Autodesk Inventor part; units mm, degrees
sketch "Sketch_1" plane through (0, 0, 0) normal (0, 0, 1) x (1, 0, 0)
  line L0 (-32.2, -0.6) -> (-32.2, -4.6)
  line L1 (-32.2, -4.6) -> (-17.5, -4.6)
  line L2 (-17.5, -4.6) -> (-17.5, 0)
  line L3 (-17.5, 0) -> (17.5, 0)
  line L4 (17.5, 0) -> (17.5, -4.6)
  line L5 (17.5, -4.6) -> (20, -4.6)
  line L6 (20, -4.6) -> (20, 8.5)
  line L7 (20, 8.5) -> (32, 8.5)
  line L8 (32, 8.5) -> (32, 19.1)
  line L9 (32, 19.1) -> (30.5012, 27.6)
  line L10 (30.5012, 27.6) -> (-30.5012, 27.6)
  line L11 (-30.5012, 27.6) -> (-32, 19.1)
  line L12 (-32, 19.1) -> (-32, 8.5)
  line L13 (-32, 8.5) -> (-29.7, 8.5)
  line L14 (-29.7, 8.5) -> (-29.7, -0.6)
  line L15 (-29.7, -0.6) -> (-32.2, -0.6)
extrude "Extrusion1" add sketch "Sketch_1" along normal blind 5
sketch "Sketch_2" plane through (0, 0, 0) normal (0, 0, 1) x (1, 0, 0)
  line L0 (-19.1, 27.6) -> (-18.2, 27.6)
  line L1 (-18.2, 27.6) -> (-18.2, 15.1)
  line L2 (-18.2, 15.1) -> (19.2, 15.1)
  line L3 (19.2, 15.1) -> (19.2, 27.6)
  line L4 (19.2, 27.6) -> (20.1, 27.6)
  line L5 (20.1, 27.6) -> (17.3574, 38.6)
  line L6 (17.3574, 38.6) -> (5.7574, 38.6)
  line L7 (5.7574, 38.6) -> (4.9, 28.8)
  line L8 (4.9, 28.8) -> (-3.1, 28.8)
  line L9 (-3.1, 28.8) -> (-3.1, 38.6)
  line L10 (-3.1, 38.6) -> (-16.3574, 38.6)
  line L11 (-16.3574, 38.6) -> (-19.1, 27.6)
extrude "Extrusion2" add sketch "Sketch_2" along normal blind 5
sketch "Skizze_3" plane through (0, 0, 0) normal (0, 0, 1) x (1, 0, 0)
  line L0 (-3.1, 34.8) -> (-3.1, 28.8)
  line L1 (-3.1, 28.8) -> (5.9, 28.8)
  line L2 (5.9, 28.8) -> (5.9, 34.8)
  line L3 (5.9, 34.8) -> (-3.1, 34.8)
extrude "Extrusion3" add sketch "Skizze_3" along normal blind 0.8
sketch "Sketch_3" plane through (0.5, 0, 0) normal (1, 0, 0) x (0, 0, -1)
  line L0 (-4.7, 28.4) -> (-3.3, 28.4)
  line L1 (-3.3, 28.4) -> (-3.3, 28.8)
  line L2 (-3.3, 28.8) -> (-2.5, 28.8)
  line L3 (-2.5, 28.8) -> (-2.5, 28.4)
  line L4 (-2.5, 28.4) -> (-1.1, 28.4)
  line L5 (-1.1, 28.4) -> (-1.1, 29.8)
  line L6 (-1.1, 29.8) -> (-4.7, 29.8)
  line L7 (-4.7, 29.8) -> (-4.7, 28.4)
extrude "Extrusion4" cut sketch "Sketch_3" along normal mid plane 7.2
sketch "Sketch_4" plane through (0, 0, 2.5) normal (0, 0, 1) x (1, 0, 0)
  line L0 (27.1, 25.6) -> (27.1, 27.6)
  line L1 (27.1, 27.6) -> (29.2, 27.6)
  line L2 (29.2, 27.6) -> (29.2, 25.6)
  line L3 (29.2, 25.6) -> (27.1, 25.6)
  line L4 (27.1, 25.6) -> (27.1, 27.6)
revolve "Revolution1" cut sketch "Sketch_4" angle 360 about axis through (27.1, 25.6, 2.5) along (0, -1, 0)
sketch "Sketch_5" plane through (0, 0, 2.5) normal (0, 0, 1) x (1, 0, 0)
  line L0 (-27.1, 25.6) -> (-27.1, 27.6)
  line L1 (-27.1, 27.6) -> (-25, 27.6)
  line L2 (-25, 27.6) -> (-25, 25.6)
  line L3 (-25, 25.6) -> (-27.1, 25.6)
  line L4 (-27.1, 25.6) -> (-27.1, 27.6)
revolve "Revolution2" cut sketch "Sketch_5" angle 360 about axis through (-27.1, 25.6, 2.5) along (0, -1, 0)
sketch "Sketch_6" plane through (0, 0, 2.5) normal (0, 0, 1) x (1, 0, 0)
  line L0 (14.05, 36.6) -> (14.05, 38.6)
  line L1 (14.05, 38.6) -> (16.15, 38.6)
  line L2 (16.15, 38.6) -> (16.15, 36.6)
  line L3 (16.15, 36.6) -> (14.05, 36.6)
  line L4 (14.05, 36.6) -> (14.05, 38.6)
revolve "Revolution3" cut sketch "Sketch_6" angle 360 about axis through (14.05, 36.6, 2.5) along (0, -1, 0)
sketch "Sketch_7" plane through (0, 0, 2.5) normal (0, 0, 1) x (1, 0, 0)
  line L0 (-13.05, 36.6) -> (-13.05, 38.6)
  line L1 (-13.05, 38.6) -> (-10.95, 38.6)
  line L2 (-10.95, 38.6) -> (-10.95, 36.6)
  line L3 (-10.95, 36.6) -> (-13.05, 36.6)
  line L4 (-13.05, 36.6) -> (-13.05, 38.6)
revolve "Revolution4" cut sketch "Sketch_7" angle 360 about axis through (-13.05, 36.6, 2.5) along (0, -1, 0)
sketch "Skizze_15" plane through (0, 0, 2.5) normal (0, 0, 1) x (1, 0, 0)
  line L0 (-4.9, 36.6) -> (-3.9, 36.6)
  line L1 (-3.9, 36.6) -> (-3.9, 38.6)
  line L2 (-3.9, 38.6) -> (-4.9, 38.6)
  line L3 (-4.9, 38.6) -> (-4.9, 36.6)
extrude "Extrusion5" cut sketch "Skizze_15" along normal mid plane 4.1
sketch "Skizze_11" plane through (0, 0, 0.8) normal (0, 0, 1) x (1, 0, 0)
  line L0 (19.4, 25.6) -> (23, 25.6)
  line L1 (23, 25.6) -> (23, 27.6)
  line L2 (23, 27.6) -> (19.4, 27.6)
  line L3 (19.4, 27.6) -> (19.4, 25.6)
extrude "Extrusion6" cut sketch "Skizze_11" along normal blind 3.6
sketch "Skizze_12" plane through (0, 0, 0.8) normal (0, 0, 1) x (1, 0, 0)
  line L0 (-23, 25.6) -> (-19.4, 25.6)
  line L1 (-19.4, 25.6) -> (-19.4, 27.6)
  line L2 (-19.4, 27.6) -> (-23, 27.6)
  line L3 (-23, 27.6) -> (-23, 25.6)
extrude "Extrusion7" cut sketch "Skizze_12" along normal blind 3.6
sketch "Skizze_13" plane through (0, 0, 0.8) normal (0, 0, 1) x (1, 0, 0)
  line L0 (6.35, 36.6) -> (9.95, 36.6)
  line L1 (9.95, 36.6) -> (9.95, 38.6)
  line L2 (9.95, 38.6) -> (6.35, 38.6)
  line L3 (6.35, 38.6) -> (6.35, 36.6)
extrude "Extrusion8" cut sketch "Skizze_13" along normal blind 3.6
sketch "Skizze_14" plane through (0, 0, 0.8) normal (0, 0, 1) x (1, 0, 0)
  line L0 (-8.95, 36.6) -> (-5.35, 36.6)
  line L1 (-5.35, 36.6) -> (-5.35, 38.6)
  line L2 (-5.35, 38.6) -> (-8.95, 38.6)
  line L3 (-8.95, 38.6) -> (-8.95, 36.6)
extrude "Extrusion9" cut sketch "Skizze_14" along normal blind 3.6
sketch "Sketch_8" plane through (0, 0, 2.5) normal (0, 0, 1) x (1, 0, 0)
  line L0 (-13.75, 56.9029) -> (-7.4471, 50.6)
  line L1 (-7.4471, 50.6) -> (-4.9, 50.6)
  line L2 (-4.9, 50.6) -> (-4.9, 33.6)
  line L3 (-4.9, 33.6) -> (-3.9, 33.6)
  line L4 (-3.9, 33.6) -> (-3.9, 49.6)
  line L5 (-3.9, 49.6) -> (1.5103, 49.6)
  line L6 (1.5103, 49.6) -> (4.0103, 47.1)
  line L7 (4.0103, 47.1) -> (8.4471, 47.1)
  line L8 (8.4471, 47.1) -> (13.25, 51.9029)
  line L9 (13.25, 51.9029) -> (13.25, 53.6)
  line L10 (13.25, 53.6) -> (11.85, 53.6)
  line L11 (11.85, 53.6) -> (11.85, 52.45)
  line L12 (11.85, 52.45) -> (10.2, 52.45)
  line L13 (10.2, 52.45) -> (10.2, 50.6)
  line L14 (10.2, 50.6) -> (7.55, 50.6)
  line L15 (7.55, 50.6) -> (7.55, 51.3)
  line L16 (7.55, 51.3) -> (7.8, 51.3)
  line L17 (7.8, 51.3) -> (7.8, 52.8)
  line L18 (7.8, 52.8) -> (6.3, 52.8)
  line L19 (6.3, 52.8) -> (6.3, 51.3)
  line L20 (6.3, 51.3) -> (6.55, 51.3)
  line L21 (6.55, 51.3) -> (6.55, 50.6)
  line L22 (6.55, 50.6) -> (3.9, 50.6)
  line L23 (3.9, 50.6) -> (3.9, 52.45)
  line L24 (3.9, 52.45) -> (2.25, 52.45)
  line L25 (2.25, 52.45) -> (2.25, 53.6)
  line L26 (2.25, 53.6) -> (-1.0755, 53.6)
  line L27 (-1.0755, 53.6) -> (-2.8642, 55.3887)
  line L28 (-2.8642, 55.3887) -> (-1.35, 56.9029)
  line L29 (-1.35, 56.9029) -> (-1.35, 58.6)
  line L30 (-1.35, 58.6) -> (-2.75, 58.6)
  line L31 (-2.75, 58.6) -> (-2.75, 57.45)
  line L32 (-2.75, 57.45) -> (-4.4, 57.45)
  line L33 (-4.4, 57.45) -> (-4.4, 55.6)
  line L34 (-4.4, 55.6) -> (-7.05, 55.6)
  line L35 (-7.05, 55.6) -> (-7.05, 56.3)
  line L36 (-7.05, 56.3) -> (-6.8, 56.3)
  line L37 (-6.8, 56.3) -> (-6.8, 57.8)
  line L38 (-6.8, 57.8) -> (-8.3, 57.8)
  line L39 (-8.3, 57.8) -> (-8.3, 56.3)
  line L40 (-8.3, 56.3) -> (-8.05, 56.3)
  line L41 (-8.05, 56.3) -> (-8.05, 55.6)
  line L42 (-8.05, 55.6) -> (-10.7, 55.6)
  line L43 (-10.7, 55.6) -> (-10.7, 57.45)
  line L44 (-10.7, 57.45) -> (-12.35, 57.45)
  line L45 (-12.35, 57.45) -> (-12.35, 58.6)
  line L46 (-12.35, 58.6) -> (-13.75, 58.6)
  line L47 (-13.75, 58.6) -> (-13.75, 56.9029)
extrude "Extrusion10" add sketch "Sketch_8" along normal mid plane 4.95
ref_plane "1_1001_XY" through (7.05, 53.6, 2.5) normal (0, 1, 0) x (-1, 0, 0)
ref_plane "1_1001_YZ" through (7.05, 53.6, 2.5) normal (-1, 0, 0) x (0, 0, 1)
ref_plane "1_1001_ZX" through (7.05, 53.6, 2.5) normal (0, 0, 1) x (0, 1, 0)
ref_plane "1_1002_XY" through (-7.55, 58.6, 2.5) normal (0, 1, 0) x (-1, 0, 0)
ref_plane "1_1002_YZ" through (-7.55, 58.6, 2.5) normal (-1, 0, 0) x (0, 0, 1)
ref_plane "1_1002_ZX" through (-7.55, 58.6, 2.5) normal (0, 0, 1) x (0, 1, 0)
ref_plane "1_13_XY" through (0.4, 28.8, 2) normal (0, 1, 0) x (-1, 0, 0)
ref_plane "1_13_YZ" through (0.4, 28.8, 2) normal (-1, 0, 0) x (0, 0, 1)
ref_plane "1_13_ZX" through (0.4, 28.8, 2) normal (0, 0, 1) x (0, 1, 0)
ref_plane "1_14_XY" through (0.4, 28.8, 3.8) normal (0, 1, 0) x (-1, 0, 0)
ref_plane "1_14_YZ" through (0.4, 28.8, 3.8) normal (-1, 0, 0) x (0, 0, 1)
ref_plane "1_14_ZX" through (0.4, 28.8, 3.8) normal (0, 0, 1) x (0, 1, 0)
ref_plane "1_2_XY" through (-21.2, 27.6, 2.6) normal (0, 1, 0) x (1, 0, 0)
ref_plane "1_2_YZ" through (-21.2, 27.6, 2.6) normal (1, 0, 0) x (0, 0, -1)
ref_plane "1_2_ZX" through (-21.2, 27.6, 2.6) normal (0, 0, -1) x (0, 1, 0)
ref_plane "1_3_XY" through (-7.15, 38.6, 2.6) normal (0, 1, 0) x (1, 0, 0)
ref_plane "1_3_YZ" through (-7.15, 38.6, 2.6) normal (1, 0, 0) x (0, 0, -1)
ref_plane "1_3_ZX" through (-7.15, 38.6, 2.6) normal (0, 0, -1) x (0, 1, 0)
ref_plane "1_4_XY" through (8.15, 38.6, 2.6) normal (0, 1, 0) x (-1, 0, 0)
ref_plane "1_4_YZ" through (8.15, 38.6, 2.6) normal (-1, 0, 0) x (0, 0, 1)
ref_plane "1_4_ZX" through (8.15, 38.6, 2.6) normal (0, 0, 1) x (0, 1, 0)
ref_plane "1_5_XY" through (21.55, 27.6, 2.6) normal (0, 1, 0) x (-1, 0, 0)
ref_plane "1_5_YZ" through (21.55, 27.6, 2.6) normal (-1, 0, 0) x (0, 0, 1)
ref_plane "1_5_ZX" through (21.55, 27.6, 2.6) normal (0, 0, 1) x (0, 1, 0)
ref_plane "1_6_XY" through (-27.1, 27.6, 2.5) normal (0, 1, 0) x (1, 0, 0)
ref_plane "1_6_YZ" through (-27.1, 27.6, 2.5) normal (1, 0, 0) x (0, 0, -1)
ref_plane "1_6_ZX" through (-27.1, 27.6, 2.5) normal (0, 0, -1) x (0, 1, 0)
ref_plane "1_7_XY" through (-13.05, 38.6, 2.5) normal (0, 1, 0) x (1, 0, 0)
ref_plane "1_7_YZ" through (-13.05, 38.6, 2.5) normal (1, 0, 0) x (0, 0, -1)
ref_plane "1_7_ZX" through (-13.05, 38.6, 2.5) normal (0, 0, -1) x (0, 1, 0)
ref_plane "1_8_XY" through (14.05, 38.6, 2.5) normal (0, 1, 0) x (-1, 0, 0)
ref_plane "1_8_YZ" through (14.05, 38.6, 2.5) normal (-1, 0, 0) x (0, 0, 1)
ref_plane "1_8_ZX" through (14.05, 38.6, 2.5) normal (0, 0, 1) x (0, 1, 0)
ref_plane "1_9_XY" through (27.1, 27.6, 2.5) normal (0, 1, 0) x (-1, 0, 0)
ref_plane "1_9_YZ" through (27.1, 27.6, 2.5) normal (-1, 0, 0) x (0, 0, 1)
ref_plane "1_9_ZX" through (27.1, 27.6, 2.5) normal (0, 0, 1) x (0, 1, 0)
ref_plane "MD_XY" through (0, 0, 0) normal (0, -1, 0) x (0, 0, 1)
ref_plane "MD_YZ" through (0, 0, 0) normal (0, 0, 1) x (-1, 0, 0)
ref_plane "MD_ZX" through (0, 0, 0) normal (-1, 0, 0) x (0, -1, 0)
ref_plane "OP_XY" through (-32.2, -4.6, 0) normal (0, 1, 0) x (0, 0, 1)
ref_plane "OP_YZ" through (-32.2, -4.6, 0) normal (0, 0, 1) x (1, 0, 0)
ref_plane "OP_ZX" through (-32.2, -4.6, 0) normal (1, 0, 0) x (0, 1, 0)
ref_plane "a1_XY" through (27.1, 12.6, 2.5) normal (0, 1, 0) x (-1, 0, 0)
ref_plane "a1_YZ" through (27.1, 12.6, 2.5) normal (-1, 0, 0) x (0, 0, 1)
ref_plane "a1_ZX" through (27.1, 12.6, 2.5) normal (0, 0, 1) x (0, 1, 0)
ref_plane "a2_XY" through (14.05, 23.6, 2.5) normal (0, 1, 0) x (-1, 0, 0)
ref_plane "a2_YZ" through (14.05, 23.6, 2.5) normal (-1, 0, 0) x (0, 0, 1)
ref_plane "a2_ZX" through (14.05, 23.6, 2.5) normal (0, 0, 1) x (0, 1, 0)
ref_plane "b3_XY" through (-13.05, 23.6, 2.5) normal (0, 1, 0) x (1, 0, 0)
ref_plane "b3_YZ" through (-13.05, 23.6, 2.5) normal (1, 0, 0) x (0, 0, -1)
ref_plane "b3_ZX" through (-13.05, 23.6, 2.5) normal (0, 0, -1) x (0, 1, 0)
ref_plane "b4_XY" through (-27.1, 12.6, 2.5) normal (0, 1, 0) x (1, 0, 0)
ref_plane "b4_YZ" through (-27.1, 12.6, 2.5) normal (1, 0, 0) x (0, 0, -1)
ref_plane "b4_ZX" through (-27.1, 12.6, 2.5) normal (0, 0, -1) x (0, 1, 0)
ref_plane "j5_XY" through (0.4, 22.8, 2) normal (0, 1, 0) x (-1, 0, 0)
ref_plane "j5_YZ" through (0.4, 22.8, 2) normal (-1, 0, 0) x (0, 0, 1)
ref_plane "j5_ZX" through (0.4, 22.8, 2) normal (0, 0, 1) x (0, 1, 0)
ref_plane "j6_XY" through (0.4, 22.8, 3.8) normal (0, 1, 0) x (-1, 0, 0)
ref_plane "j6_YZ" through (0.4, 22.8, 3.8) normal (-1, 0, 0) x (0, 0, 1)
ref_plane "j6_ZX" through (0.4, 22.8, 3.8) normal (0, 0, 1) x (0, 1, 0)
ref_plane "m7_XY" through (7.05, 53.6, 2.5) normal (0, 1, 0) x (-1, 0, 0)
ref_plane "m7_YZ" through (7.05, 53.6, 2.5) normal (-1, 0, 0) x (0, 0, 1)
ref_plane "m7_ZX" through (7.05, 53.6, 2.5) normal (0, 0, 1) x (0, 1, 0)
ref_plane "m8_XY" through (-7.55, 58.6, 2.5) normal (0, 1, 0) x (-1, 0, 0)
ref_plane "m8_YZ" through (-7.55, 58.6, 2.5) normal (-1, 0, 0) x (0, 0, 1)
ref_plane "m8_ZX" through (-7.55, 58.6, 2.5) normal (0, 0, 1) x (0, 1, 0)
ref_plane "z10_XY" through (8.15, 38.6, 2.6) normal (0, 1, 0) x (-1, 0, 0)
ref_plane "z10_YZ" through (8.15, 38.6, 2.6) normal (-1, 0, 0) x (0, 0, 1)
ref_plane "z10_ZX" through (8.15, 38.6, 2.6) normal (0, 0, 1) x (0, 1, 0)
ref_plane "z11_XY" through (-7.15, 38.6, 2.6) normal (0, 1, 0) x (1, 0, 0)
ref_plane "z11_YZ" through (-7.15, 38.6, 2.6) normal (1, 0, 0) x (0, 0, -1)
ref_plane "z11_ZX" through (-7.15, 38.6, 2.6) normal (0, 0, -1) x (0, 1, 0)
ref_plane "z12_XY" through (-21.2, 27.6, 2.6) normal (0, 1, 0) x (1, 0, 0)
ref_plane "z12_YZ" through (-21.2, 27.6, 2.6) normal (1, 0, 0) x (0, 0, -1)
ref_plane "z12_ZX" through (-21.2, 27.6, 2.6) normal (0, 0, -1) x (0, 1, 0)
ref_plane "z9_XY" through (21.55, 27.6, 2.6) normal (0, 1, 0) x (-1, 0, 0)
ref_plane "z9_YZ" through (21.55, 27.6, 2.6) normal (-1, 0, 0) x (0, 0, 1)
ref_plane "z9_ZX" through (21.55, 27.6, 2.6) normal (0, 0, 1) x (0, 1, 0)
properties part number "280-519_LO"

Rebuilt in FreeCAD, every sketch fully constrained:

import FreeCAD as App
import Part
import Sketcher
Q = App.Units.Quantity

doc = App.newDocument("Part")
body = doc.addObject("PartDesign::Body", "Body")

sketch1 = doc.addObject("Sketcher::SketchObject", "Sketch")
body.addObject(sketch1)
sketch1.AttachmentSupport = (doc.XY_Plane, [""])
sketch1.MapMode = "FlatFace"
sketch1.addGeometry([
    Part.LineSegment(App.Vector(-29.7, -0.6, 0), App.Vector(-32.2, -0.6, 0)),
    Part.LineSegment(App.Vector(-32.2, -0.6, 0), App.Vector(-32.2, -4.6, 0)),
    Part.LineSegment(App.Vector(-32.2, -4.6, 0), App.Vector(-17.5, -4.6, 0)),
    Part.LineSegment(App.Vector(-17.5, -4.6, 0), App.Vector(-17.5, 0, 0)),
    Part.LineSegment(App.Vector(-17.5, 0, 0), App.Vector(17.5, 0, 0)),
    Part.LineSegment(App.Vector(17.5, 0, 0), App.Vector(17.5, -4.6, 0)),
    Part.LineSegment(App.Vector(17.5, -4.6, 0), App.Vector(20, -4.6, 0)),
    Part.LineSegment(App.Vector(20, -4.6, 0), App.Vector(20, 8.5, 0)),
    Part.LineSegment(App.Vector(20, 8.5, 0), App.Vector(32, 8.5, 0)),
    Part.LineSegment(App.Vector(32, 8.5, 0), App.Vector(32, 19.1, 0)),
    Part.LineSegment(App.Vector(32, 19.1, 0), App.Vector(30.5, 27.6, 0)),
    Part.LineSegment(App.Vector(30.5, 27.6, 0), App.Vector(-30.5, 27.6, 0)),
    Part.LineSegment(App.Vector(-30.5, 27.6, 0), App.Vector(-32, 19.1, 0)),
    Part.LineSegment(App.Vector(-32, 19.1, 0), App.Vector(-32, 8.5, 0)),
    Part.LineSegment(App.Vector(-32, 8.5, 0), App.Vector(-29.7, 8.5, 0)),
    Part.LineSegment(App.Vector(-29.7, 8.5, 0), App.Vector(-29.7, -0.6, 0)),
], False)
sketch1.addConstraint([
    Sketcher.Constraint("Coincident", 0, 2, 1, 1),
    Sketcher.Constraint("Coincident", 1, 2, 2, 1),
    Sketcher.Constraint("Coincident", 2, 2, 3, 1),
    Sketcher.Constraint("Coincident", 3, 2, 4, 1),
    Sketcher.Constraint("Coincident", 4, 2, 5, 1),
    Sketcher.Constraint("Coincident", 5, 2, 6, 1),
    Sketcher.Constraint("Coincident", 6, 2, 7, 1),
    Sketcher.Constraint("Coincident", 7, 2, 8, 1),
    Sketcher.Constraint("Coincident", 8, 2, 9, 1),
    Sketcher.Constraint("Coincident", 9, 2, 10, 1),
    Sketcher.Constraint("Coincident", 10, 2, 11, 1),
    Sketcher.Constraint("Coincident", 11, 2, 12, 1),
    Sketcher.Constraint("Coincident", 12, 2, 13, 1),
    Sketcher.Constraint("Coincident", 13, 2, 14, 1),
    Sketcher.Constraint("Coincident", 14, 2, 15, 1),
    Sketcher.Constraint("Coincident", 15, 2, 0, 1),
    Sketcher.Constraint("Horizontal", 0),
    Sketcher.Constraint("Vertical", 1),
    Sketcher.Constraint("Horizontal", 2),
    Sketcher.Constraint("Vertical", 3),
    Sketcher.Constraint("Horizontal", 4),
    Sketcher.Constraint("Vertical", 5),
    Sketcher.Constraint("Horizontal", 6),
    Sketcher.Constraint("Vertical", 7),
    Sketcher.Constraint("Horizontal", 8),
    Sketcher.Constraint("Vertical", 9),
    Sketcher.Constraint("Horizontal", 11),
    Sketcher.Constraint("Vertical", 13),
    Sketcher.Constraint("Horizontal", 14),
    Sketcher.Constraint("Vertical", 15),
    Sketcher.Constraint("Symmetric", 3, 2, 4, 2, -1, 1),
    Sketcher.Constraint("Symmetric", 9, 2, 12, 2, -2),
    Sketcher.Constraint("Horizontal", 2, 2, 5, 2),
    Sketcher.Constraint("Horizontal", 8, 2, 13, 2),
    Sketcher.Constraint("Equal", 0, 6),
    Sketcher.Constraint("Equal", 10, 12),
    Sketcher.Constraint("DistanceX", 4, 1, 4, 2, Q("35 mm")),
    Sketcher.Constraint("DistanceX", 8, 1, 8, 2, Q("12 mm")),
    Sketcher.Constraint("DistanceY", 1, 2, 1, 1, Q("4 mm")),
    Sketcher.Constraint("Angle", 10, Q("100.0001 deg")),
    Sketcher.Constraint("DistanceX", 0, 2, 0, 1, Q("2.5 mm")),
    Sketcher.Constraint("DistanceX", 2, 1, 2, 2, Q("14.7 mm")),
    Sketcher.Constraint("DistanceY", 3, 1, 3, 2, Q("4.6 mm")),
    Sketcher.Constraint("DistanceY", 7, 1, 7, 2, Q("13.1 mm")),
    Sketcher.Constraint("DistanceY", 9, 1, 9, 2, Q("10.6 mm")),
    Sketcher.Constraint("DistanceY", -1, 1, 10, 2, Q("27.6 mm")),
])
pad1 = doc.addObject("PartDesign::Pad", "Pad")
body.addObject(pad1)
pad1.Profile = sketch1
pad1.Length = 5

sketch2 = doc.addObject("Sketcher::SketchObject", "Sketch001")
body.addObject(sketch2)
sketch2.AttachmentSupport = (doc.XY_Plane, [""])
sketch2.MapMode = "FlatFace"
sketch2.addGeometry([
    Part.LineSegment(App.Vector(-16.4, 38.6, 0), App.Vector(-19.1, 27.6, 0)),
    Part.LineSegment(App.Vector(-19.1, 27.6, 0), App.Vector(-18.2, 27.6, 0)),
    Part.LineSegment(App.Vector(-18.2, 27.6, 0), App.Vector(-18.2, 15.1, 0)),
    Part.LineSegment(App.Vector(-18.2, 15.1, 0), App.Vector(19.2, 15.1, 0)),
    Part.LineSegment(App.Vector(19.2, 15.1, 0), App.Vector(19.2, 27.6, 0)),
    Part.LineSegment(App.Vector(19.2, 27.6, 0), App.Vector(20.1, 27.6, 0)),
    Part.LineSegment(App.Vector(20.1, 27.6, 0), App.Vector(17.4, 38.6, 0)),
    Part.LineSegment(App.Vector(17.4, 38.6, 0), App.Vector(5.8, 38.6, 0)),
    Part.LineSegment(App.Vector(5.8, 38.6, 0), App.Vector(4.9, 28.8, 0)),
    Part.LineSegment(App.Vector(4.9, 28.8, 0), App.Vector(-3.1, 28.8, 0)),
    Part.LineSegment(App.Vector(-3.1, 28.8, 0), App.Vector(-3.1, 38.6, 0)),
    Part.LineSegment(App.Vector(-3.1, 38.6, 0), App.Vector(-16.4, 38.6, 0)),
], False)
sketch2.addConstraint([
    Sketcher.Constraint("Coincident", 0, 2, 1, 1),
    Sketcher.Constraint("Coincident", 1, 2, 2, 1),
    Sketcher.Constraint("Coincident", 2, 2, 3, 1),
    Sketcher.Constraint("Coincident", 3, 2, 4, 1),
    Sketcher.Constraint("Coincident", 4, 2, 5, 1),
    Sketcher.Constraint("Coincident", 5, 2, 6, 1),
    Sketcher.Constraint("Coincident", 6, 2, 7, 1),
    Sketcher.Constraint("Coincident", 7, 2, 8, 1),
    Sketcher.Constraint("Coincident", 8, 2, 9, 1),
    Sketcher.Constraint("Coincident", 9, 2, 10, 1),
    Sketcher.Constraint("Coincident", 10, 2, 11, 1),
    Sketcher.Constraint("Coincident", 11, 2, 0, 1),
    Sketcher.Constraint("Horizontal", 1),
    Sketcher.Constraint("Vertical", 2),
    Sketcher.Constraint("Horizontal", 3),
    Sketcher.Constraint("Vertical", 4),
    Sketcher.Constraint("Horizontal", 5),
    Sketcher.Constraint("Horizontal", 7),
    Sketcher.Constraint("Horizontal", 9),
    Sketcher.Constraint("Vertical", 10),
    Sketcher.Constraint("Horizontal", 11),
    Sketcher.Constraint("Horizontal", 1, 2, 4, 2),
    Sketcher.Constraint("Horizontal", 7, 2, 10, 2),
    Sketcher.Constraint("Equal", 1, 5),
    Sketcher.Constraint("Equal", 0, 6),
    Sketcher.Constraint("DistanceX", 9, 2, 9, 1, Q("8 mm")),
    Sketcher.Constraint("Angle", 0, Q("-104 deg")),
    Sketcher.Constraint("Angle", 8, Q("-95 deg")),
    Sketcher.Constraint("DistanceX", 1, 1, 1, 2, Q("0.9 mm")),
    Sketcher.Constraint("DistanceX", 3, 1, 3, 2, Q("37.4 mm")),
    Sketcher.Constraint("DistanceX", 7, 2, 7, 1, Q("11.6 mm")),
    Sketcher.Constraint("DistanceY", 2, 2, 2, 1, Q("12.5 mm")),
    Sketcher.Constraint("DistanceY", 10, 1, 10, 2, Q("9.8 mm")),
    Sketcher.Constraint("DistanceY", 4, 2, 6, 2, Q("11 mm")),
    Sketcher.Constraint("DistanceX", 0, 2, -1, 1, Q("19.1 mm")),
    Sketcher.Constraint("DistanceY", -1, 1, 0, 2, Q("27.6 mm")),
])
pad2 = doc.addObject("PartDesign::Pad", "Pad001")
body.addObject(pad2)
pad2.Profile = sketch2
pad2.Length = 5

sketch3 = doc.addObject("Sketcher::SketchObject", "Sketch002")
body.addObject(sketch3)
sketch3.AttachmentSupport = (doc.XY_Plane, [""])
sketch3.MapMode = "FlatFace"
sketch3.addGeometry([
    Part.LineSegment(App.Vector(6, 35, 0), App.Vector(-3, 35, 0)),
    Part.LineSegment(App.Vector(-3, 35, 0), App.Vector(-3, 29, 0)),
    Part.LineSegment(App.Vector(-3, 29, 0), App.Vector(6, 29, 0)),
    Part.LineSegment(App.Vector(6, 29, 0), App.Vector(6, 35, 0)),
], False)
sketch3.addConstraint([
    Sketcher.Constraint("Coincident", 0, 2, 1, 1),
    Sketcher.Constraint("Coincident", 1, 2, 2, 1),
    Sketcher.Constraint("Coincident", 2, 2, 3, 1),
    Sketcher.Constraint("Coincident", 3, 2, 0, 1),
    Sketcher.Constraint("Horizontal", 0),
    Sketcher.Constraint("Vertical", 1),
    Sketcher.Constraint("Horizontal", 2),
    Sketcher.Constraint("Vertical", 3),
    Sketcher.Constraint("DistanceX", 0, 2, 0, 1, Q("9 mm")),
    Sketcher.Constraint("DistanceY", 1, 2, 1, 1, Q("6 mm")),
    Sketcher.Constraint("DistanceX", 0, 2, -1, 1, Q("3.1 mm")),
    Sketcher.Constraint("DistanceY", -1, 1, 0, 2, Q("34.8 mm")),
])
pad3 = doc.addObject("PartDesign::Pad", "Pad002")
body.addObject(pad3)
pad3.Profile = sketch3
pad3.Length = 0.8

sketch4 = doc.addObject("Sketcher::SketchObject", "Sketch003")
body.addObject(sketch4)
sketch4.AttachmentSupport = (doc.YZ_Plane, [""])
sketch4.MapMode = "FlatFace"
sketch4.AttachmentOffset = App.Placement(App.Vector(0, 0, 0.5), App.Rotation())
sketch4.addGeometry([
    Part.LineSegment(App.Vector(29.8, 4.7, 0), App.Vector(28.4, 4.7, 0)),
    Part.LineSegment(App.Vector(28.4, 4.7, 0), App.Vector(28.4, 3.3, 0)),
    Part.LineSegment(App.Vector(28.4, 3.3, 0), App.Vector(28.8, 3.3, 0)),
    Part.LineSegment(App.Vector(28.8, 3.3, 0), App.Vector(28.8, 2.5, 0)),
    Part.LineSegment(App.Vector(28.8, 2.5, 0), App.Vector(28.4, 2.5, 0)),
    Part.LineSegment(App.Vector(28.4, 2.5, 0), App.Vector(28.4, 1.1, 0)),
    Part.LineSegment(App.Vector(28.4, 1.1, 0), App.Vector(29.8, 1.1, 0)),
    Part.LineSegment(App.Vector(29.8, 1.1, 0), App.Vector(29.8, 4.7, 0)),
], False)
sketch4.addConstraint([
    Sketcher.Constraint("Coincident", 0, 2, 1, 1),
    Sketcher.Constraint("Coincident", 1, 2, 2, 1),
    Sketcher.Constraint("Coincident", 2, 2, 3, 1),
    Sketcher.Constraint("Coincident", 3, 2, 4, 1),
    Sketcher.Constraint("Coincident", 4, 2, 5, 1),
    Sketcher.Constraint("Coincident", 5, 2, 6, 1),
    Sketcher.Constraint("Coincident", 6, 2, 7, 1),
    Sketcher.Constraint("Coincident", 7, 2, 0, 1),
    Sketcher.Constraint("Horizontal", 0),
    Sketcher.Constraint("Vertical", 1),
    Sketcher.Constraint("Horizontal", 2),
    Sketcher.Constraint("Vertical", 3),
    Sketcher.Constraint("Horizontal", 4),
    Sketcher.Constraint("Vertical", 5),
    Sketcher.Constraint("Horizontal", 6),
    Sketcher.Constraint("Vertical", 7),
    Sketcher.Constraint("Vertical", 1, 2, 4, 2),
    Sketcher.Constraint("Equal", 6, 1),
    Sketcher.Constraint("Equal", 1, 5),
    Sketcher.Constraint("DistanceX", 0, 2, 0, 1, Q("1.4 mm")),
    Sketcher.Constraint("DistanceX", 2, 1, 2, 2, Q("0.4 mm")),
    Sketcher.Constraint("DistanceY", 3, 2, 3, 1, Q("0.8 mm")),
    Sketcher.Constraint("DistanceX", -1, 1, 0, 2, Q("28.4 mm")),
    Sketcher.Constraint("DistanceY", -1, 1, 0, 2, Q("4.7 mm")),
])
pocket1 = doc.addObject("PartDesign::Pocket", "Pocket")
body.addObject(pocket1)
pocket1.Profile = sketch4
pocket1.Length = 7.2
pocket1.Midplane = True

sketch5 = doc.addObject("Sketcher::SketchObject", "Sketch004")
body.addObject(sketch5)
sketch5.AttachmentSupport = (doc.XY_Plane, [""])
sketch5.MapMode = "FlatFace"
sketch5.AttachmentOffset = App.Placement(App.Vector(0, 0, 2.5), App.Rotation())
sketch5.addGeometry([
    Part.LineSegment(App.Vector(27.1, 27.6, 0), App.Vector(27.1, 25.6, 0)),
    Part.LineSegment(App.Vector(27.1, 25.6, 0), App.Vector(29.2, 25.6, 0)),
    Part.LineSegment(App.Vector(29.2, 25.6, 0), App.Vector(29.2, 27.6, 0)),
    Part.LineSegment(App.Vector(29.2, 27.6, 0), App.Vector(27.1, 27.6, 0)),
], False)
sketch5.addGeometry(Part.LineSegment(App.Vector(27.1, 27.6, 0), App.Vector(27.1, 25.6, 0)), True)
sketch5.addConstraint([
    Sketcher.Constraint("Coincident", 0, 2, 1, 1),
    Sketcher.Constraint("Coincident", 1, 2, 2, 1),
    Sketcher.Constraint("Coincident", 2, 2, 3, 1),
    Sketcher.Constraint("Coincident", 3, 2, 0, 1),
    Sketcher.Constraint("Vertical", 0),
    Sketcher.Constraint("Horizontal", 1),
    Sketcher.Constraint("Vertical", 2),
    Sketcher.Constraint("Horizontal", 3),
    Sketcher.Constraint("Vertical", 4),
    Sketcher.Constraint("Coincident", 4, 1, 3, 2),
    Sketcher.Constraint("Horizontal", 1, 2, 4, 2),
    Sketcher.Constraint("DistanceY", 0, 2, 0, 1, Q("2 mm")),
    Sketcher.Constraint("DistanceX", 1, 1, 1, 2, Q("2.1 mm")),
    Sketcher.Constraint("DistanceX", -1, 1, 0, 2, Q("27.1 mm")),
    Sketcher.Constraint("DistanceY", -1, 1, 0, 2, Q("25.6 mm")),
])
groove = doc.addObject("PartDesign::Groove", "Groove")
body.addObject(groove)
groove.Profile = sketch5
groove.ReferenceAxis = (sketch5, ["Axis0"])
groove.Angle = 360

sketch6 = doc.addObject("Sketcher::SketchObject", "Sketch005")
body.addObject(sketch6)
sketch6.AttachmentSupport = (doc.XY_Plane, [""])
sketch6.MapMode = "FlatFace"
sketch6.AttachmentOffset = App.Placement(App.Vector(0, 0, 2.5), App.Rotation())
sketch6.addGeometry([
    Part.LineSegment(App.Vector(-27.1, 27.6, 0), App.Vector(-27.1, 25.6, 0)),
    Part.LineSegment(App.Vector(-27.1, 25.6, 0), App.Vector(-25, 25.6, 0)),
    Part.LineSegment(App.Vector(-25, 25.6, 0), App.Vector(-25, 27.6, 0)),
    Part.LineSegment(App.Vector(-25, 27.6, 0), App.Vector(-27.1, 27.6, 0)),
], False)
sketch6.addGeometry(Part.LineSegment(App.Vector(-27.1, 27.6, 0), App.Vector(-27.1, 25.6, 0)), True)
sketch6.addConstraint([
    Sketcher.Constraint("Coincident", 0, 2, 1, 1),
    Sketcher.Constraint("Coincident", 1, 2, 2, 1),
    Sketcher.Constraint("Coincident", 2, 2, 3, 1),
    Sketcher.Constraint("Coincident", 3, 2, 0, 1),
    Sketcher.Constraint("Vertical", 0),
    Sketcher.Constraint("Horizontal", 1),
    Sketcher.Constraint("Vertical", 2),
    Sketcher.Constraint("Horizontal", 3),
    Sketcher.Constraint("Vertical", 4),
    Sketcher.Constraint("Coincident", 4, 1, 3, 2),
    Sketcher.Constraint("Horizontal", 1, 2, 4, 2),
    Sketcher.Constraint("DistanceY", 0, 2, 0, 1, Q("2 mm")),
    Sketcher.Constraint("DistanceX", 1, 1, 1, 2, Q("2.1 mm")),
    Sketcher.Constraint("DistanceX", 1, 2, -1, 1, Q("25 mm")),
    Sketcher.Constraint("DistanceY", -1, 1, 0, 2, Q("25.6 mm")),
])
groove2 = doc.addObject("PartDesign::Groove", "Groove001")
body.addObject(groove2)
groove2.Profile = sketch6
groove2.ReferenceAxis = (sketch6, ["Axis0"])
groove2.Angle = 360

sketch7 = doc.addObject("Sketcher::SketchObject", "Sketch006")
body.addObject(sketch7)
sketch7.AttachmentSupport = (doc.XY_Plane, [""])
sketch7.MapMode = "FlatFace"
sketch7.AttachmentOffset = App.Placement(App.Vector(0, 0, 2.5), App.Rotation())
sketch7.addGeometry([
    Part.LineSegment(App.Vector(14.1, 38.6, 0), App.Vector(14.1, 36.6, 0)),
    Part.LineSegment(App.Vector(14.1, 36.6, 0), App.Vector(16.1, 36.6, 0)),
    Part.LineSegment(App.Vector(16.1, 36.6, 0), App.Vector(16.1, 38.6, 0)),
    Part.LineSegment(App.Vector(16.1, 38.6, 0), App.Vector(14.1, 38.6, 0)),
], False)
sketch7.addGeometry(Part.LineSegment(App.Vector(14.1, 38.6, 0), App.Vector(14.1, 36.6, 0)), True)
sketch7.addConstraint([
    Sketcher.Constraint("Coincident", 0, 2, 1, 1),
    Sketcher.Constraint("Coincident", 1, 2, 2, 1),
    Sketcher.Constraint("Coincident", 2, 2, 3, 1),
    Sketcher.Constraint("Coincident", 3, 2, 0, 1),
    Sketcher.Constraint("Vertical", 0),
    Sketcher.Constraint("Horizontal", 1),
    Sketcher.Constraint("Vertical", 2),
    Sketcher.Constraint("Horizontal", 3),
    Sketcher.Constraint("Vertical", 4),
    Sketcher.Constraint("Coincident", 4, 1, 3, 2),
    Sketcher.Constraint("Horizontal", 1, 2, 4, 2),
    Sketcher.Constraint("DistanceY", 0, 2, 0, 1, Q("2 mm")),
    Sketcher.Constraint("DistanceX", 1, 1, 1, 2, Q("2.1 mm")),
    Sketcher.Constraint("DistanceY", -1, 1, 0, 2, Q("36.6 mm")),
    Sketcher.Constraint("DistanceX", -1, 1, 0, 2, Q("14.05 mm")),
])
groove3 = doc.addObject("PartDesign::Groove", "Groove002")
body.addObject(groove3)
groove3.Profile = sketch7
groove3.ReferenceAxis = (sketch7, ["Axis0"])
groove3.Angle = 360

sketch8 = doc.addObject("Sketcher::SketchObject", "Sketch007")
body.addObject(sketch8)
sketch8.AttachmentSupport = (doc.XY_Plane, [""])
sketch8.MapMode = "FlatFace"
sketch8.AttachmentOffset = App.Placement(App.Vector(0, 0, 2.5), App.Rotation())
sketch8.addGeometry([
    Part.LineSegment(App.Vector(-13.1, 38.6, 0), App.Vector(-13.1, 36.6, 0)),
    Part.LineSegment(App.Vector(-13.1, 36.6, 0), App.Vector(-10.9, 36.6, 0)),
    Part.LineSegment(App.Vector(-10.9, 36.6, 0), App.Vector(-10.9, 38.6, 0)),
    Part.LineSegment(App.Vector(-10.9, 38.6, 0), App.Vector(-13.1, 38.6, 0)),
], False)
sketch8.addGeometry(Part.LineSegment(App.Vector(-13.1, 38.6, 0), App.Vector(-13.1, 36.6, 0)), True)
sketch8.addConstraint([
    Sketcher.Constraint("Coincident", 0, 2, 1, 1),
    Sketcher.Constraint("Coincident", 1, 2, 2, 1),
    Sketcher.Constraint("Coincident", 2, 2, 3, 1),
    Sketcher.Constraint("Coincident", 3, 2, 0, 1),
    Sketcher.Constraint("Vertical", 0),
    Sketcher.Constraint("Horizontal", 1),
    Sketcher.Constraint("Vertical", 2),
    Sketcher.Constraint("Horizontal", 3),
    Sketcher.Constraint("Vertical", 4),
    Sketcher.Constraint("Coincident", 4, 1, 3, 2),
    Sketcher.Constraint("Horizontal", 1, 2, 4, 2),
    Sketcher.Constraint("DistanceY", 0, 2, 0, 1, Q("2 mm")),
    Sketcher.Constraint("DistanceX", 1, 1, 1, 2, Q("2.1 mm")),
    Sketcher.Constraint("DistanceY", -1, 1, 0, 2, Q("36.6 mm")),
    Sketcher.Constraint("DistanceX", 0, 2, -1, 1, Q("13.05 mm")),
])
groove4 = doc.addObject("PartDesign::Groove", "Groove003")
body.addObject(groove4)
groove4.Profile = sketch8
groove4.ReferenceAxis = (sketch8, ["Axis0"])
groove4.Angle = 360

sketch9 = doc.addObject("Sketcher::SketchObject", "Sketch008")
body.addObject(sketch9)
sketch9.AttachmentSupport = (doc.XY_Plane, [""])
sketch9.MapMode = "FlatFace"
sketch9.AttachmentOffset = App.Placement(App.Vector(0, 0, 2.5), App.Rotation())
sketch9.addGeometry([
    Part.LineSegment(App.Vector(-4.9, 38.6, 0), App.Vector(-4.9, 36.6, 0)),
    Part.LineSegment(App.Vector(-4.9, 36.6, 0), App.Vector(-3.9, 36.6, 0)),
    Part.LineSegment(App.Vector(-3.9, 36.6, 0), App.Vector(-3.9, 38.6, 0)),
    Part.LineSegment(App.Vector(-3.9, 38.6, 0), App.Vector(-4.9, 38.6, 0)),
], False)
sketch9.addConstraint([
    Sketcher.Constraint("Coincident", 0, 2, 1, 1),
    Sketcher.Constraint("Coincident", 1, 2, 2, 1),
    Sketcher.Constraint("Coincident", 2, 2, 3, 1),
    Sketcher.Constraint("Coincident", 3, 2, 0, 1),
    Sketcher.Constraint("Vertical", 0),
    Sketcher.Constraint("Horizontal", 1),
    Sketcher.Constraint("Vertical", 2),
    Sketcher.Constraint("Horizontal", 3),
    Sketcher.Constraint("DistanceX", 1, 1, 1, 2, Q("1 mm")),
    Sketcher.Constraint("DistanceY", 0, 2, 0, 1, Q("2 mm")),
    Sketcher.Constraint("DistanceX", 0, 2, -1, 1, Q("4.9 mm")),
    Sketcher.Constraint("DistanceY", -1, 1, 0, 2, Q("36.6 mm")),
])
pocket2 = doc.addObject("PartDesign::Pocket", "Pocket001")
body.addObject(pocket2)
pocket2.Profile = sketch9
pocket2.Length = 4.1
pocket2.Midplane = True

sketch10 = doc.addObject("Sketcher::SketchObject", "Sketch009")
body.addObject(sketch10)
sketch10.AttachmentSupport = (doc.XY_Plane, [""])
sketch10.MapMode = "FlatFace"
sketch10.AttachmentOffset = App.Placement(App.Vector(0, 0, 0.8), App.Rotation())
sketch10.addGeometry([
    Part.LineSegment(App.Vector(19.4, 27.6, 0), App.Vector(19.4, 25.6, 0)),
    Part.LineSegment(App.Vector(19.4, 25.6, 0), App.Vector(23, 25.6, 0)),
    Part.LineSegment(App.Vector(23, 25.6, 0), App.Vector(23, 27.6, 0)),
    Part.LineSegment(App.Vector(23, 27.6, 0), App.Vector(19.4, 27.6, 0)),
], False)
sketch10.addConstraint([
    Sketcher.Constraint("Coincident", 0, 2, 1, 1),
    Sketcher.Constraint("Coincident", 1, 2, 2, 1),
    Sketcher.Constraint("Coincident", 2, 2, 3, 1),
    Sketcher.Constraint("Coincident", 3, 2, 0, 1),
    Sketcher.Constraint("Vertical", 0),
    Sketcher.Constraint("Horizontal", 1),
    Sketcher.Constraint("Vertical", 2),
    Sketcher.Constraint("Horizontal", 3),
    Sketcher.Constraint("DistanceY", 0, 2, 0, 1, Q("2 mm")),
    Sketcher.Constraint("DistanceX", 1, 1, 1, 2, Q("3.6 mm")),
    Sketcher.Constraint("DistanceX", -1, 1, 1, 2, Q("23 mm")),
    Sketcher.Constraint("DistanceY", -1, 1, 0, 2, Q("25.6 mm")),
])
pocket3 = doc.addObject("PartDesign::Pocket", "Pocket002")
body.addObject(pocket3)
pocket3.Profile = sketch10
pocket3.Length = 3.6
pocket3.Reversed = True

sketch11 = doc.addObject("Sketcher::SketchObject", "Sketch010")
body.addObject(sketch11)
sketch11.AttachmentSupport = (doc.XY_Plane, [""])
sketch11.MapMode = "FlatFace"
sketch11.AttachmentOffset = App.Placement(App.Vector(0, 0, 0.8), App.Rotation())
sketch11.addGeometry([
    Part.LineSegment(App.Vector(-23, 27.6, 0), App.Vector(-23, 25.6, 0)),
    Part.LineSegment(App.Vector(-23, 25.6, 0), App.Vector(-19.4, 25.6, 0)),
    Part.LineSegment(App.Vector(-19.4, 25.6, 0), App.Vector(-19.4, 27.6, 0)),
    Part.LineSegment(App.Vector(-19.4, 27.6, 0), App.Vector(-23, 27.6, 0)),
], False)
sketch11.addConstraint([
    Sketcher.Constraint("Coincident", 0, 2, 1, 1),
    Sketcher.Constraint("Coincident", 1, 2, 2, 1),
    Sketcher.Constraint("Coincident", 2, 2, 3, 1),
    Sketcher.Constraint("Coincident", 3, 2, 0, 1),
    Sketcher.Constraint("Vertical", 0),
    Sketcher.Constraint("Horizontal", 1),
    Sketcher.Constraint("Vertical", 2),
    Sketcher.Constraint("Horizontal", 3),
    Sketcher.Constraint("DistanceY", 0, 2, 0, 1, Q("2 mm")),
    Sketcher.Constraint("DistanceX", 1, 1, 1, 2, Q("3.6 mm")),
    Sketcher.Constraint("DistanceX", 0, 2, -1, 1, Q("23 mm")),
    Sketcher.Constraint("DistanceY", -1, 1, 0, 2, Q("25.6 mm")),
])
pocket4 = doc.addObject("PartDesign::Pocket", "Pocket003")
body.addObject(pocket4)
pocket4.Profile = sketch11
pocket4.Length = 3.6
pocket4.Reversed = True

sketch12 = doc.addObject("Sketcher::SketchObject", "Sketch011")
body.addObject(sketch12)
sketch12.AttachmentSupport = (doc.XY_Plane, [""])
sketch12.MapMode = "FlatFace"
sketch12.AttachmentOffset = App.Placement(App.Vector(0, 0, 0.8), App.Rotation())
sketch12.addGeometry([
    Part.LineSegment(App.Vector(6.3, 38.6, 0), App.Vector(6.3, 36.6, 0)),
    Part.LineSegment(App.Vector(6.3, 36.6, 0), App.Vector(9.9, 36.6, 0)),
    Part.LineSegment(App.Vector(9.9, 36.6, 0), App.Vector(9.9, 38.6, 0)),
    Part.LineSegment(App.Vector(9.9, 38.6, 0), App.Vector(6.3, 38.6, 0)),
], False)
sketch12.addConstraint([
    Sketcher.Constraint("Coincident", 0, 2, 1, 1),
    Sketcher.Constraint("Coincident", 1, 2, 2, 1),
    Sketcher.Constraint("Coincident", 2, 2, 3, 1),
    Sketcher.Constraint("Coincident", 3, 2, 0, 1),
    Sketcher.Constraint("Vertical", 0),
    Sketcher.Constraint("Horizontal", 1),
    Sketcher.Constraint("Vertical", 2),
    Sketcher.Constraint("Horizontal", 3),
    Sketcher.Constraint("DistanceY", 0, 2, 0, 1, Q("2 mm")),
    Sketcher.Constraint("DistanceX", 1, 1, 1, 2, Q("3.6 mm")),
    Sketcher.Constraint("DistanceY", -1, 1, 0, 2, Q("36.6 mm")),
    Sketcher.Constraint("DistanceX", -1, 1, 0, 2, Q("6.35 mm")),
])
pocket5 = doc.addObject("PartDesign::Pocket", "Pocket004")
body.addObject(pocket5)
pocket5.Profile = sketch12
pocket5.Length = 3.6
pocket5.Reversed = True

sketch13 = doc.addObject("Sketcher::SketchObject", "Sketch012")
body.addObject(sketch13)
sketch13.AttachmentSupport = (doc.XY_Plane, [""])
sketch13.MapMode = "FlatFace"
sketch13.AttachmentOffset = App.Placement(App.Vector(0, 0, 0.8), App.Rotation())
sketch13.addGeometry([
    Part.LineSegment(App.Vector(-8.9, 38.6, 0), App.Vector(-8.9, 36.6, 0)),
    Part.LineSegment(App.Vector(-8.9, 36.6, 0), App.Vector(-5.3, 36.6, 0)),
    Part.LineSegment(App.Vector(-5.3, 36.6, 0), App.Vector(-5.3, 38.6, 0)),
    Part.LineSegment(App.Vector(-5.3, 38.6, 0), App.Vector(-8.9, 38.6, 0)),
], False)
sketch13.addConstraint([
    Sketcher.Constraint("Coincident", 0, 2, 1, 1),
    Sketcher.Constraint("Coincident", 1, 2, 2, 1),
    Sketcher.Constraint("Coincident", 2, 2, 3, 1),
    Sketcher.Constraint("Coincident", 3, 2, 0, 1),
    Sketcher.Constraint("Vertical", 0),
    Sketcher.Constraint("Horizontal", 1),
    Sketcher.Constraint("Vertical", 2),
    Sketcher.Constraint("Horizontal", 3),
    Sketcher.Constraint("DistanceY", 0, 2, 0, 1, Q("2 mm")),
    Sketcher.Constraint("DistanceX", 1, 1, 1, 2, Q("3.6 mm")),
    Sketcher.Constraint("DistanceY", -1, 1, 0, 2, Q("36.6 mm")),
    Sketcher.Constraint("DistanceX", 0, 2, -1, 1, Q("8.95 mm")),
])
pocket6 = doc.addObject("PartDesign::Pocket", "Pocket005")
body.addObject(pocket6)
pocket6.Profile = sketch13
pocket6.Length = 3.6
pocket6.Reversed = True

sketch14 = doc.addObject("Sketcher::SketchObject", "Sketch013")
body.addObject(sketch14)
sketch14.AttachmentSupport = (doc.XY_Plane, [""])
sketch14.MapMode = "FlatFace"
sketch14.AttachmentOffset = App.Placement(App.Vector(0, 0, 2.5), App.Rotation())
sketch14.addGeometry([
    Part.LineSegment(App.Vector(-13.75, 58.6, 0), App.Vector(-13.75, 56.9, 0)),
    Part.LineSegment(App.Vector(-13.75, 56.9, 0), App.Vector(-7.45, 50.6, 0)),
    Part.LineSegment(App.Vector(-7.45, 50.6, 0), App.Vector(-4.9, 50.6, 0)),
    Part.LineSegment(App.Vector(-4.9, 50.6, 0), App.Vector(-4.9, 33.6, 0)),
    Part.LineSegment(App.Vector(-4.9, 33.6, 0), App.Vector(-3.9, 33.6, 0)),
    Part.LineSegment(App.Vector(-3.9, 33.6, 0), App.Vector(-3.9, 49.6, 0)),
    Part.LineSegment(App.Vector(-3.9, 49.6, 0), App.Vector(1.51, 49.6, 0)),
    Part.LineSegment(App.Vector(1.51, 49.6, 0), App.Vector(4.01, 47.1, 0)),
    Part.LineSegment(App.Vector(4.01, 47.1, 0), App.Vector(8.45, 47.1, 0)),
    Part.LineSegment(App.Vector(8.45, 47.1, 0), App.Vector(13.25, 51.9, 0)),
    Part.LineSegment(App.Vector(13.25, 51.9, 0), App.Vector(13.25, 53.6, 0)),
    Part.LineSegment(App.Vector(13.25, 53.6, 0), App.Vector(11.85, 53.6, 0)),
    Part.LineSegment(App.Vector(11.85, 53.6, 0), App.Vector(11.85, 52.45, 0)),
    Part.LineSegment(App.Vector(11.85, 52.45, 0), App.Vector(10.2, 52.45, 0)),
    Part.LineSegment(App.Vector(10.2, 52.45, 0), App.Vector(10.2, 50.6, 0)),
    Part.LineSegment(App.Vector(10.2, 50.6, 0), App.Vector(7.55, 50.6, 0)),
    Part.LineSegment(App.Vector(7.55, 50.6, 0), App.Vector(7.55, 51.3, 0)),
    Part.LineSegment(App.Vector(7.55, 51.3, 0), App.Vector(7.8, 51.3, 0)),
    Part.LineSegment(App.Vector(7.8, 51.3, 0), App.Vector(7.8, 52.8, 0)),
    Part.LineSegment(App.Vector(7.8, 52.8, 0), App.Vector(6.3, 52.8, 0)),
    Part.LineSegment(App.Vector(6.3, 52.8, 0), App.Vector(6.3, 51.3, 0)),
    Part.LineSegment(App.Vector(6.3, 51.3, 0), App.Vector(6.55, 51.3, 0)),
    Part.LineSegment(App.Vector(6.55, 51.3, 0), App.Vector(6.55, 50.6, 0)),
    Part.LineSegment(App.Vector(6.55, 50.6, 0), App.Vector(3.9, 50.6, 0)),
    Part.LineSegment(App.Vector(3.9, 50.6, 0), App.Vector(3.9, 52.45, 0)),
    Part.LineSegment(App.Vector(3.9, 52.45, 0), App.Vector(2.25, 52.45, 0)),
    Part.LineSegment(App.Vector(2.25, 52.45, 0), App.Vector(2.25, 53.6, 0)),
    Part.LineSegment(App.Vector(2.25, 53.6, 0), App.Vector(-1.08, 53.6, 0)),
    Part.LineSegment(App.Vector(-1.08, 53.6, 0), App.Vector(-2.86, 55.39, 0)),
    Part.LineSegment(App.Vector(-2.86, 55.39, 0), App.Vector(-1.35, 56.9, 0)),
    Part.LineSegment(App.Vector(-1.35, 56.9, 0), App.Vector(-1.35, 58.6, 0)),
    Part.LineSegment(App.Vector(-1.35, 58.6, 0), App.Vector(-2.75, 58.6, 0)),
    Part.LineSegment(App.Vector(-2.75, 58.6, 0), App.Vector(-2.75, 57.45, 0)),
    Part.LineSegment(App.Vector(-2.75, 57.45, 0), App.Vector(-4.4, 57.45, 0)),
    Part.LineSegment(App.Vector(-4.4, 57.45, 0), App.Vector(-4.4, 55.6, 0)),
    Part.LineSegment(App.Vector(-4.4, 55.6, 0), App.Vector(-7.05, 55.6, 0)),
    Part.LineSegment(App.Vector(-7.05, 55.6, 0), App.Vector(-7.05, 56.3, 0)),
    Part.LineSegment(App.Vector(-7.05, 56.3, 0), App.Vector(-6.8, 56.3, 0)),
    Part.LineSegment(App.Vector(-6.8, 56.3, 0), App.Vector(-6.8, 57.8, 0)),
    Part.LineSegment(App.Vector(-6.8, 57.8, 0), App.Vector(-8.3, 57.8, 0)),
    Part.LineSegment(App.Vector(-8.3, 57.8, 0), App.Vector(-8.3, 56.3, 0)),
    Part.LineSegment(App.Vector(-8.3, 56.3, 0), App.Vector(-8.05, 56.3, 0)),
    Part.LineSegment(App.Vector(-8.05, 56.3, 0), App.Vector(-8.05, 55.6, 0)),
    Part.LineSegment(App.Vector(-8.05, 55.6, 0), App.Vector(-10.7, 55.6, 0)),
    Part.LineSegment(App.Vector(-10.7, 55.6, 0), App.Vector(-10.7, 57.45, 0)),
    Part.LineSegment(App.Vector(-10.7, 57.45, 0), App.Vector(-12.35, 57.45, 0)),
    Part.LineSegment(App.Vector(-12.35, 57.45, 0), App.Vector(-12.35, 58.6, 0)),
    Part.LineSegment(App.Vector(-12.35, 58.6, 0), App.Vector(-13.75, 58.6, 0)),
], False)
sketch14.addConstraint([
    Sketcher.Constraint("Coincident", 0, 2, 1, 1),
    Sketcher.Constraint("Coincident", 1, 2, 2, 1),
    Sketcher.Constraint("Coincident", 2, 2, 3, 1),
    Sketcher.Constraint("Coincident", 3, 2, 4, 1),
    Sketcher.Constraint("Coincident", 4, 2, 5, 1),
    Sketcher.Constraint("Coincident", 5, 2, 6, 1),
    Sketcher.Constraint("Coincident", 6, 2, 7, 1),
    Sketcher.Constraint("Coincident", 7, 2, 8, 1),
    Sketcher.Constraint("Coincident", 8, 2, 9, 1),
    Sketcher.Constraint("Coincident", 9, 2, 10, 1),
    Sketcher.Constraint("Coincident", 10, 2, 11, 1),
    Sketcher.Constraint("Coincident", 11, 2, 12, 1),
    Sketcher.Constraint("Coincident", 12, 2, 13, 1),
    Sketcher.Constraint("Coincident", 13, 2, 14, 1),
    Sketcher.Constraint("Coincident", 14, 2, 15, 1),
    Sketcher.Constraint("Coincident", 15, 2, 16, 1),
    Sketcher.Constraint("Coincident", 16, 2, 17, 1),
    Sketcher.Constraint("Coincident", 17, 2, 18, 1),
    Sketcher.Constraint("Coincident", 18, 2, 19, 1),
    Sketcher.Constraint("Coincident", 19, 2, 20, 1),
    Sketcher.Constraint("Coincident", 20, 2, 21, 1),
    Sketcher.Constraint("Coincident", 21, 2, 22, 1),
    Sketcher.Constraint("Coincident", 22, 2, 23, 1),
    Sketcher.Constraint("Coincident", 23, 2, 24, 1),
    Sketcher.Constraint("Coincident", 24, 2, 25, 1),
    Sketcher.Constraint("Coincident", 25, 2, 26, 1),
    Sketcher.Constraint("Coincident", 26, 2, 27, 1),
    Sketcher.Constraint("Coincident", 27, 2, 28, 1),
    Sketcher.Constraint("Coincident", 28, 2, 29, 1),
    Sketcher.Constraint("Coincident", 29, 2, 30, 1),
    Sketcher.Constraint("Coincident", 30, 2, 31, 1),
    Sketcher.Constraint("Coincident", 31, 2, 32, 1),
    Sketcher.Constraint("Coincident", 32, 2, 33, 1),
    Sketcher.Constraint("Coincident", 33, 2, 34, 1),
    Sketcher.Constraint("Coincident", 34, 2, 35, 1),
    Sketcher.Constraint("Coincident", 35, 2, 36, 1),
    Sketcher.Constraint("Coincident", 36, 2, 37, 1),
    Sketcher.Constraint("Coincident", 37, 2, 38, 1),
    Sketcher.Constraint("Coincident", 38, 2, 39, 1),
    Sketcher.Constraint("Coincident", 39, 2, 40, 1),
    Sketcher.Constraint("Coincident", 40, 2, 41, 1),
    Sketcher.Constraint("Coincident", 41, 2, 42, 1),
    Sketcher.Constraint("Coincident", 42, 2, 43, 1),
    Sketcher.Constraint("Coincident", 43, 2, 44, 1),
    Sketcher.Constraint("Coincident", 44, 2, 45, 1),
    Sketcher.Constraint("Coincident", 45, 2, 46, 1),
    Sketcher.Constraint("Coincident", 46, 2, 47, 1),
    Sketcher.Constraint("Coincident", 47, 2, 0, 1),
    Sketcher.Constraint("Vertical", 0),
    Sketcher.Constraint("Horizontal", 2),
    Sketcher.Constraint("Vertical", 3),
    Sketcher.Constraint("Horizontal", 4),
    Sketcher.Constraint("Vertical", 5),
    Sketcher.Constraint("Horizontal", 6),
    Sketcher.Constraint("Horizontal", 8),
    Sketcher.Constraint("Vertical", 10),
    Sketcher.Constraint("Horizontal", 11),
    Sketcher.Constraint("Vertical", 12),
    Sketcher.Constraint("Horizontal", 13),
    Sketcher.Constraint("Vertical", 14),
    Sketcher.Constraint("Horizontal", 15),
    Sketcher.Constraint("Vertical", 16),
    Sketcher.Constraint("Horizontal", 17),
    Sketcher.Constraint("Vertical", 18),
    Sketcher.Constraint("Horizontal", 19),
    Sketcher.Constraint("Vertical", 20),
    Sketcher.Constraint("Horizontal", 21),
    Sketcher.Constraint("Vertical", 22),
    Sketcher.Constraint("Horizontal", 23),
    Sketcher.Constraint("Vertical", 24),
    Sketcher.Constraint("Horizontal", 25),
    Sketcher.Constraint("Vertical", 26),
    Sketcher.Constraint("Horizontal", 27),
    Sketcher.Constraint("Vertical", 30),
    Sketcher.Constraint("Horizontal", 31),
    Sketcher.Constraint("Vertical", 32),
    Sketcher.Constraint("Horizontal", 33),
    Sketcher.Constraint("Vertical", 34),
    Sketcher.Constraint("Horizontal", 35),
    Sketcher.Constraint("Vertical", 36),
    Sketcher.Constraint("Horizontal", 37),
    Sketcher.Constraint("Vertical", 38),
    Sketcher.Constraint("Horizontal", 39),
    Sketcher.Constraint("Vertical", 40),
    Sketcher.Constraint("Horizontal", 41),
    Sketcher.Constraint("Vertical", 42),
    Sketcher.Constraint("Horizontal", 43),
    Sketcher.Constraint("Vertical", 44),
    Sketcher.Constraint("Horizontal", 45),
    Sketcher.Constraint("Vertical", 46),
    Sketcher.Constraint("Horizontal", 47),
    Sketcher.Constraint("Parallel", 1, 7),
    Sketcher.Constraint("Perpendicular", 7, 9),
    Sketcher.Constraint("Perpendicular", 9, 28),
    Sketcher.Constraint("Perpendicular", 28, 29),
    Sketcher.Constraint("Horizontal", 2, 2, 14, 2),
    Sketcher.Constraint("Horizontal", 17, 2, 20, 2),
    Sketcher.Constraint("Horizontal", 15, 2, 22, 2),
    Sketcher.Constraint("Horizontal", 13, 2, 24, 2),
    Sketcher.Constraint("Horizontal", 11, 2, 26, 2),
    Sketcher.Constraint("Horizontal", 0, 2, 29, 2),
    Sketcher.Constraint("Horizontal", 37, 2, 40, 2),
    Sketcher.Constraint("Horizontal", 35, 2, 42, 2),
    Sketcher.Constraint("Horizontal", 33, 2, 44, 2),
    Sketcher.Constraint("Horizontal", 31, 2, 46, 2),
    Sketcher.Constraint("Equal", 17, 21),
    Sketcher.Constraint("Equal", 15, 23),
    Sketcher.Constraint("Equal", 13, 25),
    Sketcher.Constraint("Equal", 11, 31),
    Sketcher.Constraint("Equal", 25, 33),
    Sketcher.Constraint("Equal", 23, 35),
    Sketcher.Constraint("Equal", 21, 37),
    Sketcher.Constraint("Equal", 19, 39),
    Sketcher.Constraint("Equal", 37, 41),
    Sketcher.Constraint("Equal", 35, 43),
    Sketcher.Constraint("Equal", 33, 45),
    Sketcher.Constraint("Equal", 31, 47),
    Sketcher.Constraint("Equal", 0, 10),
    Sketcher.Constraint("Equal", 39, 18),
    Sketcher.Constraint("Equal", 26, 32),
    Sketcher.Constraint("Equal", 24, 34),
    Sketcher.Constraint("Equal", 22, 36),
    Sketcher.Constraint("Equal", 20, 38),
    Sketcher.Constraint("DistanceX", 4, 1, 4, 2, Q("1 mm")),
    Sketcher.Constraint("DistanceY", 3, 2, 3, 1, Q("17 mm")),
    Sketcher.Constraint("DistanceY", 5, 1, 5, 2, Q("16 mm")),
    Sketcher.Constraint("Angle", 1, Q("-45 deg")),
    Sketcher.Constraint("DistanceX", 11, 2, 11, 1, Q("1.4 mm")),
    Sketcher.Constraint("DistanceX", 19, 2, 19, 1, Q("1.5 mm")),
    Sketcher.Constraint("DistanceY", 16, 1, 16, 2, Q("0.7 mm")),
    Sketcher.Constraint("DistanceY", 6, 2, 10, 2, Q("4 mm")),
    Sketcher.Constraint("DistanceX", 21, 2, 16, 2, Q("1 mm")),
    Sketcher.Constraint("DistanceY", 27, 2, 30, 2, Q("5 mm")),
    Sketcher.Constraint("DistanceX", 31, 2, 26, 2, Q("5 mm")),
    Sketcher.Constraint("DistanceX", 13, 2, 13, 1, Q("1.65 mm")),
    Sketcher.Constraint("DistanceX", 15, 2, 15, 1, Q("2.65 mm")),
    Sketcher.Constraint("DistanceY", 12, 2, 12, 1, Q("1.15 mm")),
    Sketcher.Constraint("DistanceY", -1, 1, 1, 2, Q("50.6 mm")),
    Sketcher.Constraint("DistanceX", 2, 2, -1, 1, Q("4.9 mm")),
    Sketcher.Constraint("DistanceY", -1, 1, 7, 2, Q("47.1 mm")),
    Sketcher.Constraint("DistanceX", -1, 1, 13, 2, Q("10.2 mm")),
    Sketcher.Constraint("DistanceX", 2, 1, 2, 2, Q("2.547 mm")),
    Sketcher.Constraint("DistanceX", 6, 1, 6, 2, Q("5.4103 mm")),
    Sketcher.Constraint("DistanceX", 27, 2, 27, 1, Q("3.3255 mm")),
])
pad4 = doc.addObject("PartDesign::Pad", "Pad003")
body.addObject(pad4)
pad4.Profile = sketch14
pad4.Length = 4.95
pad4.Midplane = True

doc.recompute()
